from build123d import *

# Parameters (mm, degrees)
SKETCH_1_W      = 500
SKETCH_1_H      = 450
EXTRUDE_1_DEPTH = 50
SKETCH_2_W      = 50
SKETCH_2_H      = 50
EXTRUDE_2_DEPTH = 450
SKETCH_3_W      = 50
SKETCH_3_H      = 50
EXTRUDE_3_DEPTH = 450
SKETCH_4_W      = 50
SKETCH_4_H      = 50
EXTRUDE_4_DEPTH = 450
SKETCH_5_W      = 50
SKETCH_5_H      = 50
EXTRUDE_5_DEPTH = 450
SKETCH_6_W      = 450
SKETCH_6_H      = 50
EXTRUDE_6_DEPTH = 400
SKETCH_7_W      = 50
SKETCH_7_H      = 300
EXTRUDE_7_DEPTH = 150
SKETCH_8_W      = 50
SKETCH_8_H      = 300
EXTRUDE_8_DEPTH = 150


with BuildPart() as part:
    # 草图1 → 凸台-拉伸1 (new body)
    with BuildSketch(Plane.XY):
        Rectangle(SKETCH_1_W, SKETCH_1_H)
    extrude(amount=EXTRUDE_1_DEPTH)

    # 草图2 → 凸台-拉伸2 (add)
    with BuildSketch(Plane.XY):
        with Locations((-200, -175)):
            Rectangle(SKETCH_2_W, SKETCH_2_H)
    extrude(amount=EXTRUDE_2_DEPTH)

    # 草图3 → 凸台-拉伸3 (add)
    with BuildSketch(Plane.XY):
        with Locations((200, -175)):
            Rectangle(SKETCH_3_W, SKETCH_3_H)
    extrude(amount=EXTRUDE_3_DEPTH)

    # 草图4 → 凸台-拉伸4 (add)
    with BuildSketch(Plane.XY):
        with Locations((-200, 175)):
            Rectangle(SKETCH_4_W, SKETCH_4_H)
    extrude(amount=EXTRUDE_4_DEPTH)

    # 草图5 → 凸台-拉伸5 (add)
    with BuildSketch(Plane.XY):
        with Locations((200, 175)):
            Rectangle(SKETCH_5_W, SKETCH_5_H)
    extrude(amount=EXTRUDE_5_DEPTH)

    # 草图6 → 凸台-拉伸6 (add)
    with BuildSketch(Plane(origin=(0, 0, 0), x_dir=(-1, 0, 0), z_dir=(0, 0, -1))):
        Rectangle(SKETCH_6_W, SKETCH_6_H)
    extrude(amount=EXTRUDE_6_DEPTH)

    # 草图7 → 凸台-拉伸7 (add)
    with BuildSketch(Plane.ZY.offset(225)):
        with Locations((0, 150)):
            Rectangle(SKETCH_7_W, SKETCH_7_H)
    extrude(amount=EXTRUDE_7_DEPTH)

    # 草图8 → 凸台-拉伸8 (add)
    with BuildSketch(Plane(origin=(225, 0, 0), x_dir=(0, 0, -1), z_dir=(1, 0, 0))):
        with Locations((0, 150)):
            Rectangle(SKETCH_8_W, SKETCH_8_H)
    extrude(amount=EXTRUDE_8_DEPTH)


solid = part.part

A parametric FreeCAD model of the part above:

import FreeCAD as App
import Part
import Sketcher
from FreeCAD import Vector


def add_polygon(sketch, points):
    """Adds a closed chain of lines whose ends are joined by coincident constraints."""
    first, n = sketch.GeometryCount, len(points)
    for a, b in zip(points, points[1:] + points[:1]):
        sketch.addGeometry(Part.LineSegment(App.Vector(*a, 0), App.Vector(*b, 0)), False)
    for i in range(n):
        sketch.addConstraint(Sketcher.Constraint("Coincident", first + i, 2, first + (i + 1) % n, 1))

doc = App.newDocument("Part")
body = doc.addObject("PartDesign::Body", "Body")

sketch1 = body.newObject("Sketcher::SketchObject", "Sketch")
sketch1.AttachmentSupport = (doc.getObject("XY_Plane"), [""])
sketch1.MapMode = "FlatFace"
add_polygon(sketch1, [(-250, 225), (-250, -225), (250, -225), (250, 225)])
sketch1.addConstraint([
    Sketcher.Constraint("Vertical", 0),
    Sketcher.Constraint("Horizontal", 1),
    Sketcher.Constraint("Vertical", 2),
    Sketcher.Constraint("Horizontal", 3),
    Sketcher.Constraint("Symmetric", 0, 2, 2, 2, -1, 1),
    Sketcher.Constraint("DistanceX", 1, 1, 1, 2, 500.0),
    Sketcher.Constraint("DistanceY", 0, 2, 0, 1, 450.0),
])
pad1 = body.newObject("PartDesign::Pad", "Pad")
pad1.Profile = sketch1
pad1.Length = 50

sketch2 = body.newObject("Sketcher::SketchObject", "Sketch001")
sketch2.AttachmentSupport = (doc.getObject("XY_Plane"), [""])
sketch2.MapMode = "FlatFace"
add_polygon(sketch2, [(-225, -150), (-225, -200), (-175, -200), (-175, -150)])
sketch2.addConstraint([
    Sketcher.Constraint("Vertical", 0),
    Sketcher.Constraint("Horizontal", 1),
    Sketcher.Constraint("Vertical", 2),
    Sketcher.Constraint("Horizontal", 3),
    Sketcher.Constraint("Equal", 3, 0),
    Sketcher.Constraint("DistanceX", 1, 1, 1, 2, 50.0),
    Sketcher.Constraint("DistanceX", 0, 2, -1, 1, 225.0),
    Sketcher.Constraint("DistanceY", 0, 2, -1, 1, 200.0),
])
pad2 = body.newObject("PartDesign::Pad", "Pad001")
pad2.Profile = sketch2
pad2.Length = 450

sketch3 = body.newObject("Sketcher::SketchObject", "Sketch002")
sketch3.AttachmentSupport = (doc.getObject("XY_Plane"), [""])
sketch3.MapMode = "FlatFace"
add_polygon(sketch3, [(175, -150), (175, -200), (225, -200), (225, -150)])
sketch3.addConstraint([
    Sketcher.Constraint("Vertical", 0),
    Sketcher.Constraint("Horizontal", 1),
    Sketcher.Constraint("Vertical", 2),
    Sketcher.Constraint("Horizontal", 3),
    Sketcher.Constraint("Equal", 3, 0),
    Sketcher.Constraint("DistanceX", 1, 1, 1, 2, 50.0),
    Sketcher.Constraint("DistanceX", -1, 1, 0, 2, 175.0),
    Sketcher.Constraint("DistanceY", 0, 2, -1, 1, 200.0),
])
pad3 = body.newObject("PartDesign::Pad", "Pad002")
pad3.Profile = sketch3
pad3.Length = 450

sketch4 = body.newObject("Sketcher::SketchObject", "Sketch003")
sketch4.AttachmentSupport = (doc.getObject("XY_Plane"), [""])
sketch4.MapMode = "FlatFace"
add_polygon(sketch4, [(-225, 200), (-225, 150), (-175, 150), (-175, 200)])
sketch4.addConstraint([
    Sketcher.Constraint("Vertical", 0),
    Sketcher.Constraint("Horizontal", 1),
    Sketcher.Constraint("Vertical", 2),
    Sketcher.Constraint("Horizontal", 3),
    Sketcher.Constraint("Equal", 3, 0),
    Sketcher.Constraint("DistanceX", 1, 1, 1, 2, 50.0),
    Sketcher.Constraint("DistanceX", 0, 2, -1, 1, 225.0),
    Sketcher.Constraint("DistanceY", -1, 1, 0, 2, 150.0),
])
pad4 = body.newObject("PartDesign::Pad", "Pad003")
pad4.Profile = sketch4
pad4.Length = 450

sketch5 = body.newObject("Sketcher::SketchObject", "Sketch004")
sketch5.AttachmentSupport = (doc.getObject("XY_Plane"), [""])
sketch5.MapMode = "FlatFace"
add_polygon(sketch5, [(175, 200), (175, 150), (225, 150), (225, 200)])
sketch5.addConstraint([
    Sketcher.Constraint("Vertical", 0),
    Sketcher.Constraint("Horizontal", 1),
    Sketcher.Constraint("Vertical", 2),
    Sketcher.Constraint("Horizontal", 3),
    Sketcher.Constraint("Equal", 3, 0),
    Sketcher.Constraint("DistanceX", 1, 1, 1, 2, 50.0),
    Sketcher.Constraint("DistanceX", -1, 1, 0, 2, 175.0),
    Sketcher.Constraint("DistanceY", -1, 1, 0, 2, 150.0),
])
pad5 = body.newObject("PartDesign::Pad", "Pad004")
pad5.Profile = sketch5
pad5.Length = 450

sketch6 = body.newObject("Sketcher::SketchObject", "Sketch005")
sketch6.AttachmentSupport = (doc.getObject("XY_Plane"), [""])
sketch6.MapMode = "FlatFace"
add_polygon(sketch6, [(225, 25), (225, -25), (-225, -25), (-225, 25)])
sketch6.addConstraint([
    Sketcher.Constraint("Vertical", 0),
    Sketcher.Constraint("Horizontal", 1),
    Sketcher.Constraint("Vertical", 2),
    Sketcher.Constraint("Horizontal", 3),
    Sketcher.Constraint("Symmetric", 0, 2, 2, 2, -1, 1),
    Sketcher.Constraint("DistanceX", 1, 2, 1, 1, 450.0),
    Sketcher.Constraint("DistanceY", 0, 2, 0, 1, 50.0),
])
pad6 = body.newObject("PartDesign::Pad", "Pad005")
pad6.Profile = sketch6
pad6.Length = 400
pad6.Reversed = True

sketch7 = body.newObject("Sketcher::SketchObject", "Sketch006")
sketch7.AttachmentSupport = (doc.getObject("YZ_Plane"), [""])
sketch7.MapMode = "FlatFace"
sketch7.AttachmentOffset = App.Placement(Vector(0, 0, -225), App.Rotation())
add_polygon(sketch7, [(300, -25), (0, -25), (0, 25), (300, 25)])
sketch7.addConstraint([
    Sketcher.Constraint("Horizontal", 0),
    Sketcher.Constraint("Vertical", 1),
    Sketcher.Constraint("Horizontal", 2),
    Sketcher.Constraint("Vertical", 3),
    Sketcher.Constraint("Symmetric", 0, 2, 1, 2, -1, 1),
    Sketcher.Constraint("DistanceX", 0, 2, 0, 1, 300.0),
    Sketcher.Constraint("DistanceY", 1, 1, 1, 2, 50.0),
])
pad7 = body.newObject("PartDesign::Pad", "Pad006")
pad7.Profile = sketch7
pad7.Length = 150
pad7.Reversed = True

sketch8 = body.newObject("Sketcher::SketchObject", "Sketch007")
sketch8.AttachmentSupport = (doc.getObject("YZ_Plane"), [""])
sketch8.MapMode = "FlatFace"
sketch8.AttachmentOffset = App.Placement(Vector(0, 0, 225), App.Rotation())
add_polygon(sketch8, [(300, 25), (0, 25), (0, -25), (300, -25)])
sketch8.addConstraint([
    Sketcher.Constraint("Horizontal", 0),
    Sketcher.Constraint("Vertical", 1),
    Sketcher.Constraint("Horizontal", 2),
    Sketcher.Constraint("Vertical", 3),
    Sketcher.Constraint("Symmetric", 0, 2, 1, 2, -1, 1),
    Sketcher.Constraint("DistanceX", 0, 2, 0, 1, 300.0),
    Sketcher.Constraint("DistanceY", 1, 2, 1, 1, 50.0),
])
pad8 = body.newObject("PartDesign::Pad", "Pad007")
pad8.Profile = sketch8
pad8.Length = 150

doc.recompute()
